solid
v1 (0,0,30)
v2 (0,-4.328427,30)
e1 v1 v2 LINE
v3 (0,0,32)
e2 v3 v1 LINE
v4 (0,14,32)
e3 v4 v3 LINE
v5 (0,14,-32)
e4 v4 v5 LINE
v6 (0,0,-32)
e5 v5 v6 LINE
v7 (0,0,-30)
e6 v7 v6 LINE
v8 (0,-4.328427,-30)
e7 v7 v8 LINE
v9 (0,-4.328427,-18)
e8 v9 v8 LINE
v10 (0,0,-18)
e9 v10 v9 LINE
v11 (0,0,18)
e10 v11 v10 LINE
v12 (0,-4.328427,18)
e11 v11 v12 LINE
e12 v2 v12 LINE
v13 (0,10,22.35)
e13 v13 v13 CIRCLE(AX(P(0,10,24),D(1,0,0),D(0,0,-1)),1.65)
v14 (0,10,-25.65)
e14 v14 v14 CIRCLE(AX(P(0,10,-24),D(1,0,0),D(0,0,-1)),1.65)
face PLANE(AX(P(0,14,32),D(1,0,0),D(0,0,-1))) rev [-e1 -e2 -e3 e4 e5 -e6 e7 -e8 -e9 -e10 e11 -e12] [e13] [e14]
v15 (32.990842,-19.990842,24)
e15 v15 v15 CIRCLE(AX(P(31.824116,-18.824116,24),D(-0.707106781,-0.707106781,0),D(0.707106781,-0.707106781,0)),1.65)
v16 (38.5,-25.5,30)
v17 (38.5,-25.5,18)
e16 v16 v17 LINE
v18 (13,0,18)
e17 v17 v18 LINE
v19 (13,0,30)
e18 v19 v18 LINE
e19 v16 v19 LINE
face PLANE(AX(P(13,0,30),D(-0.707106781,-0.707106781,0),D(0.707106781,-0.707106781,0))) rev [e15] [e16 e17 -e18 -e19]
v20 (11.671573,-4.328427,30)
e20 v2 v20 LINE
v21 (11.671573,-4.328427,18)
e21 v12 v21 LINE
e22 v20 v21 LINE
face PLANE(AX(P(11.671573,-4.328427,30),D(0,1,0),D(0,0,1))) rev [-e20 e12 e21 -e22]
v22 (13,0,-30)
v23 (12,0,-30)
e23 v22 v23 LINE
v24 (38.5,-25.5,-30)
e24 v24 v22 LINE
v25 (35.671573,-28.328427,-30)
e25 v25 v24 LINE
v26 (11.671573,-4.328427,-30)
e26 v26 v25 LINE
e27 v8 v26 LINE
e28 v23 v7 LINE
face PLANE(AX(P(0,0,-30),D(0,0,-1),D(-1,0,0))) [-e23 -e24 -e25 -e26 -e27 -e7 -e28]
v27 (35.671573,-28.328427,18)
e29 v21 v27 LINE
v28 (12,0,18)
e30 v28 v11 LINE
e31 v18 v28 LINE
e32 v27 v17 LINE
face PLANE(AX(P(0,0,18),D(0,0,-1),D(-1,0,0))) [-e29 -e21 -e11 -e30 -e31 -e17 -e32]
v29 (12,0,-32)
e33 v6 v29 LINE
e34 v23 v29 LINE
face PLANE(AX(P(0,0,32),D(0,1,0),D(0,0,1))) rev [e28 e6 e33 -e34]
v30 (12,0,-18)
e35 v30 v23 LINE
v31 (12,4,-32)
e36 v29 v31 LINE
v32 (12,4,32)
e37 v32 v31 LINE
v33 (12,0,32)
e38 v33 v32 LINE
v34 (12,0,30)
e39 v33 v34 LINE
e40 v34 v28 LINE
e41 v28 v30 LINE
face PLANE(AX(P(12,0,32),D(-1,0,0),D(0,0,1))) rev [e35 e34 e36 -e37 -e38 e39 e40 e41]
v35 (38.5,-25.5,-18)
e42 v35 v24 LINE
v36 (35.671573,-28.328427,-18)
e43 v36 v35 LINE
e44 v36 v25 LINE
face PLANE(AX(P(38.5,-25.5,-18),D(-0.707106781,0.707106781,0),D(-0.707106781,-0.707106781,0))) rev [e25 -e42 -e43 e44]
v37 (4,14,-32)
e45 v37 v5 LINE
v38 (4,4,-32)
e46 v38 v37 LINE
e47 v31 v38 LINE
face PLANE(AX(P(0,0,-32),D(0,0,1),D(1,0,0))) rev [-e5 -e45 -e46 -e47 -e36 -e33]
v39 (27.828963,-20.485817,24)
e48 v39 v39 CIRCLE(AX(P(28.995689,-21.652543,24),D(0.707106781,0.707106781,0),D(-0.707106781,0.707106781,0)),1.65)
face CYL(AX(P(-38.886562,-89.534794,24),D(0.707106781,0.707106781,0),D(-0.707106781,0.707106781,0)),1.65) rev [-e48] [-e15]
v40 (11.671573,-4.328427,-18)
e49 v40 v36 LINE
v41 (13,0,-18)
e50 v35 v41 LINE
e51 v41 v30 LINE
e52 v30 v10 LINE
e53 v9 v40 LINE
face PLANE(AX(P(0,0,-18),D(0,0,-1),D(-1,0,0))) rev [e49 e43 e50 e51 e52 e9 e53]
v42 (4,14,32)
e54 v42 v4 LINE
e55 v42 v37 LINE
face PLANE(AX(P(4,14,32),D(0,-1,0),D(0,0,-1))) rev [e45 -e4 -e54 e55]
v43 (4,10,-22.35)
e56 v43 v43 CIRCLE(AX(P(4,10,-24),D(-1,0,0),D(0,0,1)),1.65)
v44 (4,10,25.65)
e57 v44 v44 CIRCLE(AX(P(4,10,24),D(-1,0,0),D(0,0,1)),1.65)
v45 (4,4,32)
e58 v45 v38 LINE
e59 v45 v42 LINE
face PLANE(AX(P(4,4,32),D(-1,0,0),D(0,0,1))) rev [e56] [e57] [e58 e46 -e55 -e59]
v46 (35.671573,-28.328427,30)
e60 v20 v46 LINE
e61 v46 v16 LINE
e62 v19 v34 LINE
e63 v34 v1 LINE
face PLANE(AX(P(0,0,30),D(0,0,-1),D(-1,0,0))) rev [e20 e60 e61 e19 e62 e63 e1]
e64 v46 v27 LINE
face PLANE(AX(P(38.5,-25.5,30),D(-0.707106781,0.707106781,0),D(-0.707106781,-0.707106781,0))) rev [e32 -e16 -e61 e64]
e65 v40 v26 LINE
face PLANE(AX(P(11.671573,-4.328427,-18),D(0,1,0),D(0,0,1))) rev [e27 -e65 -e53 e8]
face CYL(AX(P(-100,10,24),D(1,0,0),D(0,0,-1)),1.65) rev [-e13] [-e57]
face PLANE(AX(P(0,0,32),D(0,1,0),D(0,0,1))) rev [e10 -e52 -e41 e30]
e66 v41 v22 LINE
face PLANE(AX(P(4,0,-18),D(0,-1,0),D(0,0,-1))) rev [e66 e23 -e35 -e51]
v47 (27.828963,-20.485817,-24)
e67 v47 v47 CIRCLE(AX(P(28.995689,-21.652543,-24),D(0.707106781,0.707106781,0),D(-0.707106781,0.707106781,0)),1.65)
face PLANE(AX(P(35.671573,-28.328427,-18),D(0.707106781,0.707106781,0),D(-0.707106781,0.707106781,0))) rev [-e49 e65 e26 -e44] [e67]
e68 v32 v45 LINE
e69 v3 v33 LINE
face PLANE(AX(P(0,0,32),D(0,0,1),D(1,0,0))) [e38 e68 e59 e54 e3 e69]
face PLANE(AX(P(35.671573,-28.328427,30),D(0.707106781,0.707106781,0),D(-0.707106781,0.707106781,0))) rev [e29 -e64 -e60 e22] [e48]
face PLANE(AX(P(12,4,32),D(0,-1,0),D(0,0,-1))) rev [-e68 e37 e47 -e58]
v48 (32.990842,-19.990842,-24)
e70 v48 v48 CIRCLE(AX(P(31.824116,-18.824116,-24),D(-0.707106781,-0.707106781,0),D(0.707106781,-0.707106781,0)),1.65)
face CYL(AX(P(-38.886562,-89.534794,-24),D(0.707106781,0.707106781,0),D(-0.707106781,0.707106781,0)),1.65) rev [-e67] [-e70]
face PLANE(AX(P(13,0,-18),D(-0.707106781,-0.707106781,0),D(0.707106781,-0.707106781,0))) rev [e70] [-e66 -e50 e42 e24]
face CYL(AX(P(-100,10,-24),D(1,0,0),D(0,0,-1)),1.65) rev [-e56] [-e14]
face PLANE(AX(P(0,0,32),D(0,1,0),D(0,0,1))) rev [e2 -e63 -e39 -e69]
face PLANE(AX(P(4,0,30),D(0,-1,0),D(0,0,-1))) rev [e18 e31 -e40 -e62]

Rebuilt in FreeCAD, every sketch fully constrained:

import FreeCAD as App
import Part
import Sketcher

V = App.Vector
Q = App.Units.Quantity


def add_polygon(sketch, points):
    """Adds a closed chain of lines whose ends are joined by coincident constraints."""
    first, n = sketch.GeometryCount, len(points)
    for a, b in zip(points, points[1:] + points[:1]):
        sketch.addGeometry(Part.LineSegment(App.Vector(*a, 0), App.Vector(*b, 0)), False)
    for i in range(n):
        sketch.addConstraint(Sketcher.Constraint("Coincident", first + i, 2, first + (i + 1) % n, 1))

doc = App.newDocument("Part")
body = doc.addObject("PartDesign::Body", "Body")

# Sketch on XY plane
sketch1 = doc.addObject("Sketcher::SketchObject", "Sketch")
body.addObject(sketch1)
sketch1.AttachmentSupport = (doc.XY_Plane, [""])
sketch1.MapMode = "FlatFace"
sketch1.AttachmentOffset = App.Placement(V(0, 0, -32), App.Rotation())
add_polygon(sketch1, [(0, 0), (12, 0), (12, 4), (4, 4), (4, 14), (0, 14)])  # lines 0-5
sketch1.addConstraint([
    Sketcher.Constraint("Horizontal", 0),
    Sketcher.Constraint("Vertical", 1),
    Sketcher.Constraint("Horizontal", 2),
    Sketcher.Constraint("Vertical", 3),
    Sketcher.Constraint("Horizontal", 4),
    Sketcher.Constraint("Vertical", 5),
    Sketcher.Constraint("Coincident", 5, 2, -1, 1),
    Sketcher.Constraint("Equal", 4, 1),
    Sketcher.Constraint("DistanceX", 0, 1, 0, 2, 12.0),
    Sketcher.Constraint("DistanceX", 2, 2, 2, 1, 8.0),
    Sketcher.Constraint("DistanceY", 3, 1, 3, 2, 10.0),
])
pad1 = doc.addObject("PartDesign::Pad", "Pad")
body.addObject(pad1)
pad1.Profile = sketch1
pad1.Length = 64

# Sketch on XY plane
sketch2 = doc.addObject("Sketcher::SketchObject", "Sketch001")
body.addObject(sketch2)
sketch2.AttachmentSupport = (doc.XY_Plane, [""])
sketch2.MapMode = "FlatFace"
sketch2.AttachmentOffset = App.Placement(V(0, 0, -30), App.Rotation())
add_polygon(sketch2, [(0, 14), (0, -4.3), (11.7, -4.3), (35.7, -28.3), (38.5, -25.5), (13, 0), (4, 0), (4, 14)])  # lines 0-7
sketch2.addConstraint([
    Sketcher.Constraint("Vertical", 0),
    Sketcher.Constraint("Horizontal", 1),
    Sketcher.Constraint("Horizontal", 5),
    Sketcher.Constraint("Vertical", 6),
    Sketcher.Constraint("Horizontal", 7),
    Sketcher.Constraint("PointOnObject", 0, 2, -2),
    Sketcher.Constraint("PointOnObject", 4, 2, -1),
    Sketcher.Constraint("Perpendicular", 2, 3),
    Sketcher.Constraint("Perpendicular", 3, 4),
    Sketcher.Constraint("DistanceX", 5, 2, 5, 1, 9.0),
    Sketcher.Constraint("DistanceX", 7, 2, 7, 1, 4.0),
    Sketcher.Constraint("DistanceY", 6, 1, 6, 2, 14.0),
    Sketcher.Constraint("Angle", 2, Q("-45 deg")),
    Sketcher.Constraint("Distance", 3, 4.0),
    Sketcher.Constraint("DistanceX", 1, 2, 2, 2, 24.0),
    Sketcher.Constraint("DistanceX", -1, 1, 3, 2, 38.5),
])
pad2 = doc.addObject("PartDesign::Pad", "Pad001")
body.addObject(pad2)
pad2.Profile = sketch2
pad2.Length = 12

# Sketch on YZ plane
sketch3 = doc.addObject("Sketcher::SketchObject", "Sketch002")
body.addObject(sketch3)
sketch3.AttachmentSupport = (doc.YZ_Plane, [""])
sketch3.MapMode = "FlatFace"
sketch3.addGeometry(Part.Circle(V(10, -24, 0), V(0, 0, 1), 1.6), False)
sketch3.addConstraint([
    Sketcher.Constraint("Diameter", 0, 3.3),
    Sketcher.Constraint("DistanceX", -1, 1, 0, 3, 10.0),
    Sketcher.Constraint("DistanceY", 0, 3, -1, 1, 24.0),
])
pocket1 = doc.addObject("PartDesign::Pocket", "Pocket")
body.addObject(pocket1)
pocket1.Profile = sketch3
pocket1.Type = "ThroughAll"
pocket1.Midplane = True

# Sketch on XY plane
sketch4 = doc.addObject("Sketcher::SketchObject", "Sketch003")
body.addObject(sketch4)
sketch4.AttachmentSupport = (doc.XY_Plane, [""])
sketch4.MapMode = "FlatFace"
sketch4.AttachmentOffset = App.Placement(V(0, 0, 18), App.Rotation())
add_polygon(sketch4, [(0, 14), (0, -4.3), (11.7, -4.3), (35.7, -28.3), (38.5, -25.5), (13, 0), (4, 0), (4, 14)])  # lines 0-7
sketch4.addConstraint([
    Sketcher.Constraint("Vertical", 0),
    Sketcher.Constraint("Horizontal", 1),
    Sketcher.Constraint("Horizontal", 5),
    Sketcher.Constraint("Vertical", 6),
    Sketcher.Constraint("Horizontal", 7),
    Sketcher.Constraint("PointOnObject", 0, 2, -2),
    Sketcher.Constraint("PointOnObject", 4, 2, -1),
    Sketcher.Constraint("Perpendicular", 2, 3),
    Sketcher.Constraint("Perpendicular", 3, 4),
    Sketcher.Constraint("DistanceX", 5, 2, 5, 1, 9.0),
    Sketcher.Constraint("DistanceX", 7, 2, 7, 1, 4.0),
    Sketcher.Constraint("DistanceY", 6, 1, 6, 2, 14.0),
    Sketcher.Constraint("Angle", 2, Q("-45 deg")),
    Sketcher.Constraint("Distance", 3, 4.0),
    Sketcher.Constraint("DistanceX", 1, 2, 2, 2, 24.0),
    Sketcher.Constraint("DistanceX", -1, 1, 3, 2, 38.5),
])
pad3 = doc.addObject("PartDesign::Pad", "Pad002")
body.addObject(pad3)
pad3.Profile = sketch4
pad3.Length = 12

# Sketch on YZ plane
sketch5 = doc.addObject("Sketcher::SketchObject", "Sketch004")
body.addObject(sketch5)
sketch5.AttachmentSupport = (doc.YZ_Plane, [""])
sketch5.MapMode = "FlatFace"
sketch5.addGeometry(Part.Circle(V(10, 24, 0), V(0, 0, 1), 1.6), False)
sketch5.addConstraint([
    Sketcher.Constraint("Diameter", 0, 3.3),
    Sketcher.Constraint("DistanceX", -1, 1, 0, 3, 10.0),
    Sketcher.Constraint("DistanceY", -1, 1, 0, 3, 24.0),
])
pocket2 = doc.addObject("PartDesign::Pocket", "Pocket001")
body.addObject(pocket2)
pocket2.Profile = sketch5
pocket2.Type = "ThroughAll"
pocket2.Midplane = True

# Sketch on an angled plane
sketch6 = doc.addObject("Sketcher::SketchObject", "Sketch005")
body.addObject(sketch6)
sketch6.Placement = App.Placement(V(6.5, 6.5, 0), App.Rotation(V(0, 0, -1), V(-0.707106781, 0.707106781, 0), V(0.707106781, 0.707106781, 0), "ZXY"))
sketch6.addGeometry(Part.Circle(V(24, -35.8, 0), V(0, 0, 1), 1.6), False)
sketch6.addConstraint([
    Sketcher.Constraint("Diameter", 0, 3.3),
    Sketcher.Constraint("DistanceX", -1, 1, 0, 3, 24.0),
    Sketcher.Constraint("DistanceY", 0, 3, -1, 1, 35.813708),
])
pocket3 = doc.addObject("PartDesign::Pocket", "Pocket002")
body.addObject(pocket3)
pocket3.Profile = sketch6
pocket3.Type = "ThroughAll"
pocket3.Midplane = True

# Sketch on an angled plane
sketch7 = doc.addObject("Sketcher::SketchObject", "Sketch006")
body.addObject(sketch7)
sketch7.Placement = App.Placement(V(6.5, 6.5, 0), App.Rotation(V(0, 0, -1), V(-0.707106781, 0.707106781, 0), V(0.707106781, 0.707106781, 0), "ZXY"))
sketch7.addGeometry(Part.Circle(V(-24, -35.8, 0), V(0, 0, 1), 1.6), False)
sketch7.addConstraint([
    Sketcher.Constraint("Diameter", 0, 3.3),
    Sketcher.Constraint("DistanceX", 0, 3, -1, 1, 24.0),
    Sketcher.Constraint("DistanceY", 0, 3, -1, 1, 35.813708),
])
pocket4 = doc.addObject("PartDesign::Pocket", "Pocket003")
body.addObject(pocket4)
pocket4.Profile = sketch7
pocket4.Type = "ThroughAll"
pocket4.Midplane = True

doc.recompute()
